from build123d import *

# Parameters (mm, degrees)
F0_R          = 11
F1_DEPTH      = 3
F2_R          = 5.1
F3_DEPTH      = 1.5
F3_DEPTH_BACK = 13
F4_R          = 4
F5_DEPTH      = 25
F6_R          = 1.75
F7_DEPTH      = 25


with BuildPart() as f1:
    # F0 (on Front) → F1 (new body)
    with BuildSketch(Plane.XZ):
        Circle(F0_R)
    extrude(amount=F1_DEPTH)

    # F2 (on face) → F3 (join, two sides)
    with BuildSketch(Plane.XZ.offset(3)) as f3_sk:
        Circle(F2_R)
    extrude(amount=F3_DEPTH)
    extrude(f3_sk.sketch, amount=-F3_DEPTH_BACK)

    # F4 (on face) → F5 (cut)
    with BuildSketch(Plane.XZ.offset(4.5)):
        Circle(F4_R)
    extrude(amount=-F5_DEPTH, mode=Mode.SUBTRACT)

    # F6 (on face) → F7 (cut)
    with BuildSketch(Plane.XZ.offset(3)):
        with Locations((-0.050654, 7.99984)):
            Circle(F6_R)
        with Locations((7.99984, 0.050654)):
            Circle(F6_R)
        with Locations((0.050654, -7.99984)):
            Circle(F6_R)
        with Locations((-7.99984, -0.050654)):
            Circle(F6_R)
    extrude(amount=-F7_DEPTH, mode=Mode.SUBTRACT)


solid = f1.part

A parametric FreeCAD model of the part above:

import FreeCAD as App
import Part
import Sketcher
from FreeCAD import Vector
Q = App.Units.Quantity

doc = App.newDocument("Part")
body = doc.addObject("PartDesign::Body", "Body")

sketch1 = doc.addObject("Sketcher::SketchObject", "Sketch")
body.addObject(sketch1)
sketch1.AttachmentSupport = (doc.XZ_Plane, [""])
sketch1.MapMode = "FlatFace"
sketch1.addGeometry(Part.Circle(Vector(0, 0, 0), Vector(0, 0, 1), 11), False)
sketch1.addConstraint([
    Sketcher.Constraint("Coincident", 0, 3, -1, 1),
    Sketcher.Constraint("Diameter", 0, Q("22 mm")),
])
pad1 = doc.addObject("PartDesign::Pad", "Pad")
body.addObject(pad1)
pad1.Profile = sketch1
pad1.Length = 3

sketch2 = doc.addObject("Sketcher::SketchObject", "Sketch001")
body.addObject(sketch2)
sketch2.AttachmentSupport = (doc.XZ_Plane, [""])
sketch2.MapMode = "FlatFace"
sketch2.AttachmentOffset = App.Placement(Vector(0, 0, 3), App.Rotation())
sketch2.addGeometry(Part.Circle(Vector(0, 0, 0), Vector(0, 0, 1), 5), False)
sketch2.addConstraint([
    Sketcher.Constraint("Coincident", 0, 3, -1, 1),
    Sketcher.Constraint("Diameter", 0, Q("10.2 mm")),
])
pad2 = doc.addObject("PartDesign::Pad", "Pad001")
body.addObject(pad2)
pad2.Profile = sketch2
pad2.Type = "TwoLengths"
pad2.Length = 1.5
pad2.Length2 = 13

sketch3 = doc.addObject("Sketcher::SketchObject", "Sketch002")
body.addObject(sketch3)
sketch3.AttachmentSupport = (doc.XZ_Plane, [""])
sketch3.MapMode = "FlatFace"
sketch3.AttachmentOffset = App.Placement(Vector(0, 0, 4.5), App.Rotation())
sketch3.addGeometry(Part.Circle(Vector(0, 0, 0), Vector(0, 0, 1), 4), False)
sketch3.addConstraint([
    Sketcher.Constraint("Coincident", 0, 3, -1, 1),
    Sketcher.Constraint("Diameter", 0, Q("8 mm")),
])
pocket1 = doc.addObject("PartDesign::Pocket", "Pocket")
body.addObject(pocket1)
pocket1.Profile = sketch3
pocket1.Length = 25

sketch4 = doc.addObject("Sketcher::SketchObject", "Sketch003")
body.addObject(sketch4)
sketch4.AttachmentSupport = (doc.XZ_Plane, [""])
sketch4.MapMode = "FlatFace"
sketch4.AttachmentOffset = App.Placement(Vector(0, 0, 3), App.Rotation())
sketch4.addGeometry([
    Part.Circle(Vector(-0.1, 8, 0), Vector(0, 0, 1), 1.8),
    Part.Circle(Vector(8, 0.1, 0), Vector(0, 0, 1), 1.8),
    Part.Circle(Vector(0.1, -8, 0), Vector(0, 0, 1), 1.8),
    Part.Circle(Vector(-8, -0.1, 0), Vector(0, 0, 1), 1.8),
], False)
sketch4.addConstraint([
    Sketcher.Constraint("Equal", 0, 1),
    Sketcher.Constraint("Equal", 1, 2),
    Sketcher.Constraint("Equal", 2, 3),
    Sketcher.Constraint("Symmetric", 0, 3, 2, 3, -1, 1),
    Sketcher.Constraint("Symmetric", 1, 3, 3, 3, -1, 1),
    Sketcher.Constraint("Diameter", 0, Q("3.5 mm")),
    Sketcher.Constraint("DistanceY", -1, 1, 0, 3, Q("7.99984 mm")),
    Sketcher.Constraint("DistanceX", -1, 1, 1, 3, Q("7.99984 mm")),
    Sketcher.Constraint("DistanceX", 0, 3, -1, 1, Q("0.050654 mm")),
    Sketcher.Constraint("DistanceY", -1, 1, 1, 3, Q("0.050654 mm")),
])
pocket2 = doc.addObject("PartDesign::Pocket", "Pocket001")
body.addObject(pocket2)
pocket2.Profile = sketch4
pocket2.Length = 25

doc.recompute()
